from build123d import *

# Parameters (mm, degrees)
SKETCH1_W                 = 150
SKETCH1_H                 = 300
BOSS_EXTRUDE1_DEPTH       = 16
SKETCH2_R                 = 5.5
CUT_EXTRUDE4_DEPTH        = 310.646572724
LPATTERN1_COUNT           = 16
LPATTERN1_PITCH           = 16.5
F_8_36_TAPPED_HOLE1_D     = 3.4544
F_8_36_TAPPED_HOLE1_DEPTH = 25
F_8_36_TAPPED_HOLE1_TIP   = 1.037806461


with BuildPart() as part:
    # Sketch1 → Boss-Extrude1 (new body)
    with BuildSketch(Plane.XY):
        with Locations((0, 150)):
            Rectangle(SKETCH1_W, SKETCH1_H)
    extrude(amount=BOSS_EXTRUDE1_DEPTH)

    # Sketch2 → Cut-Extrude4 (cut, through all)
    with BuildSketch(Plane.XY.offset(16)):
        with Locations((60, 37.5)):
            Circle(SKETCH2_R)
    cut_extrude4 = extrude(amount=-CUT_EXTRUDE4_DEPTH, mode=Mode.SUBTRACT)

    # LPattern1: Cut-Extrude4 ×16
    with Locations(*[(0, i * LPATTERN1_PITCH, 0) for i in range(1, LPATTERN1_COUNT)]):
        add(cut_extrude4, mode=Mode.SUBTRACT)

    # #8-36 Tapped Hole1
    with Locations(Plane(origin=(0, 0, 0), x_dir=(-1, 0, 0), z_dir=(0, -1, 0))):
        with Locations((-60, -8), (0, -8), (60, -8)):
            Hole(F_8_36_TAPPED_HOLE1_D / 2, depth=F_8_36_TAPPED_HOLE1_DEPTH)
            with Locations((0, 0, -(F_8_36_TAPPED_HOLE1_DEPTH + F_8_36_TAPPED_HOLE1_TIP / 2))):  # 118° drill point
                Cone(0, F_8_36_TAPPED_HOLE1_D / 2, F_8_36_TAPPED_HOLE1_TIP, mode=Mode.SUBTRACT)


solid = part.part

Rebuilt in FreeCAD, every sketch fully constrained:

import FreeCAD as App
import Part
import Sketcher

V = App.Vector


def add_polygon(sketch, points):
    """Adds a closed chain of lines whose ends are joined by coincident constraints."""
    first, n = sketch.GeometryCount, len(points)
    for a, b in zip(points, points[1:] + points[:1]):
        sketch.addGeometry(Part.LineSegment(App.Vector(*a, 0), App.Vector(*b, 0)), False)
    for i in range(n):
        sketch.addConstraint(Sketcher.Constraint("Coincident", first + i, 2, first + (i + 1) % n, 1))

doc = App.newDocument("Part")
body = doc.addObject("PartDesign::Body", "Body")

sketch1 = body.newObject("Sketcher::SketchObject", "Sketch")
sketch1.AttachmentSupport = (doc.getObject("XY_Plane"), [""])
sketch1.MapMode = "FlatFace"
add_polygon(sketch1, [(-75, 300), (-75, 0), (75, 0), (75, 300)])
sketch1.addConstraint(Sketcher.Constraint("Vertical", 0))
sketch1.addConstraint(Sketcher.Constraint("Horizontal", 1))
sketch1.addConstraint(Sketcher.Constraint("Vertical", 2))
sketch1.addConstraint(Sketcher.Constraint("Horizontal", 3))
sketch1.addConstraint(Sketcher.Constraint("Symmetric", 0, 2, 1, 2, -1, 1))
sketch1.addConstraint(Sketcher.Constraint("DistanceX", 1, 1, 1, 2, 150.0))
sketch1.addConstraint(Sketcher.Constraint("DistanceY", 0, 2, 0, 1, 300.0))
pad1 = body.newObject("PartDesign::Pad", "Pad")
pad1.Profile = sketch1
pad1.Length = 16

sketch2 = body.newObject("Sketcher::SketchObject", "Sketch001")
sketch2.AttachmentSupport = (doc.getObject("XY_Plane"), [""])
sketch2.MapMode = "FlatFace"
sketch2.AttachmentOffset = App.Placement(V(0, 0, 16), App.Rotation())
sketch2.addGeometry(Part.Circle(V(60, 38, 0), V(0, 0, 1), 6), False)
sketch2.addConstraint(Sketcher.Constraint("Diameter", 0, 11.0))
sketch2.addConstraint(Sketcher.Constraint("DistanceX", -1, 1, 0, 3, 60.0))
sketch2.addConstraint(Sketcher.Constraint("DistanceY", -1, 1, 0, 3, 37.5))
pocket1 = body.newObject("PartDesign::Pocket", "Pocket")
pocket1.Profile = sketch2
pocket1.Type = "ThroughAll"
doc.recompute()

linearpattern = body.newObject("PartDesign::LinearPattern", "LinearPattern")
linearpattern.Originals = [pocket1]
linearpattern.Direction = (doc.getObject("Y_Axis"), [""])
linearpattern.Mode = "offset"
linearpattern.Offset = 16.5
linearpattern.Occurrences = 16
body.Tip = linearpattern

sketch3 = body.newObject("Sketcher::SketchObject", "Sketch002")
sketch3.AttachmentSupport = (doc.getObject("XZ_Plane"), [""])
sketch3.MapMode = "FlatFace"
sketch3.addGeometry(Part.Circle(V(60, 8, 0), V(0, 0, 1), 1.7), False)
sketch3.addGeometry(Part.Circle(V(0, 8, 0), V(0, 0, 1), 1.7), False)
sketch3.addGeometry(Part.Circle(V(-60, 8, 0), V(0, 0, 1), 1.7), False)
sketch3.addConstraint(Sketcher.Constraint("Equal", 0, 1))
sketch3.addConstraint(Sketcher.Constraint("Equal", 1, 2))
sketch3.addConstraint(Sketcher.Constraint("Symmetric", 0, 3, 2, 3, -2))
sketch3.addConstraint(Sketcher.Constraint("PointOnObject", 1, 3, -2))
sketch3.addConstraint(Sketcher.Constraint("Horizontal", 0, 3, 1, 3))
sketch3.addConstraint(Sketcher.Constraint("DistanceX", -1, 1, 0, 3, 60.0))
sketch3.addConstraint(Sketcher.Constraint("DistanceY", -1, 1, 0, 3, 8.0))
sketch3.addConstraint(Sketcher.Constraint("Diameter", 0, 3.4544))
doc.recompute()
hole = body.newObject("PartDesign::Hole", "Hole")
hole.Profile = sketch3
hole.ThreadType = "None"
hole.Diameter = 3.4544
hole.DepthType = "Dimension"
hole.Depth = 25
hole.DrillPoint = "Angled"
hole.DrillPointAngle = 118

doc.recompute()
